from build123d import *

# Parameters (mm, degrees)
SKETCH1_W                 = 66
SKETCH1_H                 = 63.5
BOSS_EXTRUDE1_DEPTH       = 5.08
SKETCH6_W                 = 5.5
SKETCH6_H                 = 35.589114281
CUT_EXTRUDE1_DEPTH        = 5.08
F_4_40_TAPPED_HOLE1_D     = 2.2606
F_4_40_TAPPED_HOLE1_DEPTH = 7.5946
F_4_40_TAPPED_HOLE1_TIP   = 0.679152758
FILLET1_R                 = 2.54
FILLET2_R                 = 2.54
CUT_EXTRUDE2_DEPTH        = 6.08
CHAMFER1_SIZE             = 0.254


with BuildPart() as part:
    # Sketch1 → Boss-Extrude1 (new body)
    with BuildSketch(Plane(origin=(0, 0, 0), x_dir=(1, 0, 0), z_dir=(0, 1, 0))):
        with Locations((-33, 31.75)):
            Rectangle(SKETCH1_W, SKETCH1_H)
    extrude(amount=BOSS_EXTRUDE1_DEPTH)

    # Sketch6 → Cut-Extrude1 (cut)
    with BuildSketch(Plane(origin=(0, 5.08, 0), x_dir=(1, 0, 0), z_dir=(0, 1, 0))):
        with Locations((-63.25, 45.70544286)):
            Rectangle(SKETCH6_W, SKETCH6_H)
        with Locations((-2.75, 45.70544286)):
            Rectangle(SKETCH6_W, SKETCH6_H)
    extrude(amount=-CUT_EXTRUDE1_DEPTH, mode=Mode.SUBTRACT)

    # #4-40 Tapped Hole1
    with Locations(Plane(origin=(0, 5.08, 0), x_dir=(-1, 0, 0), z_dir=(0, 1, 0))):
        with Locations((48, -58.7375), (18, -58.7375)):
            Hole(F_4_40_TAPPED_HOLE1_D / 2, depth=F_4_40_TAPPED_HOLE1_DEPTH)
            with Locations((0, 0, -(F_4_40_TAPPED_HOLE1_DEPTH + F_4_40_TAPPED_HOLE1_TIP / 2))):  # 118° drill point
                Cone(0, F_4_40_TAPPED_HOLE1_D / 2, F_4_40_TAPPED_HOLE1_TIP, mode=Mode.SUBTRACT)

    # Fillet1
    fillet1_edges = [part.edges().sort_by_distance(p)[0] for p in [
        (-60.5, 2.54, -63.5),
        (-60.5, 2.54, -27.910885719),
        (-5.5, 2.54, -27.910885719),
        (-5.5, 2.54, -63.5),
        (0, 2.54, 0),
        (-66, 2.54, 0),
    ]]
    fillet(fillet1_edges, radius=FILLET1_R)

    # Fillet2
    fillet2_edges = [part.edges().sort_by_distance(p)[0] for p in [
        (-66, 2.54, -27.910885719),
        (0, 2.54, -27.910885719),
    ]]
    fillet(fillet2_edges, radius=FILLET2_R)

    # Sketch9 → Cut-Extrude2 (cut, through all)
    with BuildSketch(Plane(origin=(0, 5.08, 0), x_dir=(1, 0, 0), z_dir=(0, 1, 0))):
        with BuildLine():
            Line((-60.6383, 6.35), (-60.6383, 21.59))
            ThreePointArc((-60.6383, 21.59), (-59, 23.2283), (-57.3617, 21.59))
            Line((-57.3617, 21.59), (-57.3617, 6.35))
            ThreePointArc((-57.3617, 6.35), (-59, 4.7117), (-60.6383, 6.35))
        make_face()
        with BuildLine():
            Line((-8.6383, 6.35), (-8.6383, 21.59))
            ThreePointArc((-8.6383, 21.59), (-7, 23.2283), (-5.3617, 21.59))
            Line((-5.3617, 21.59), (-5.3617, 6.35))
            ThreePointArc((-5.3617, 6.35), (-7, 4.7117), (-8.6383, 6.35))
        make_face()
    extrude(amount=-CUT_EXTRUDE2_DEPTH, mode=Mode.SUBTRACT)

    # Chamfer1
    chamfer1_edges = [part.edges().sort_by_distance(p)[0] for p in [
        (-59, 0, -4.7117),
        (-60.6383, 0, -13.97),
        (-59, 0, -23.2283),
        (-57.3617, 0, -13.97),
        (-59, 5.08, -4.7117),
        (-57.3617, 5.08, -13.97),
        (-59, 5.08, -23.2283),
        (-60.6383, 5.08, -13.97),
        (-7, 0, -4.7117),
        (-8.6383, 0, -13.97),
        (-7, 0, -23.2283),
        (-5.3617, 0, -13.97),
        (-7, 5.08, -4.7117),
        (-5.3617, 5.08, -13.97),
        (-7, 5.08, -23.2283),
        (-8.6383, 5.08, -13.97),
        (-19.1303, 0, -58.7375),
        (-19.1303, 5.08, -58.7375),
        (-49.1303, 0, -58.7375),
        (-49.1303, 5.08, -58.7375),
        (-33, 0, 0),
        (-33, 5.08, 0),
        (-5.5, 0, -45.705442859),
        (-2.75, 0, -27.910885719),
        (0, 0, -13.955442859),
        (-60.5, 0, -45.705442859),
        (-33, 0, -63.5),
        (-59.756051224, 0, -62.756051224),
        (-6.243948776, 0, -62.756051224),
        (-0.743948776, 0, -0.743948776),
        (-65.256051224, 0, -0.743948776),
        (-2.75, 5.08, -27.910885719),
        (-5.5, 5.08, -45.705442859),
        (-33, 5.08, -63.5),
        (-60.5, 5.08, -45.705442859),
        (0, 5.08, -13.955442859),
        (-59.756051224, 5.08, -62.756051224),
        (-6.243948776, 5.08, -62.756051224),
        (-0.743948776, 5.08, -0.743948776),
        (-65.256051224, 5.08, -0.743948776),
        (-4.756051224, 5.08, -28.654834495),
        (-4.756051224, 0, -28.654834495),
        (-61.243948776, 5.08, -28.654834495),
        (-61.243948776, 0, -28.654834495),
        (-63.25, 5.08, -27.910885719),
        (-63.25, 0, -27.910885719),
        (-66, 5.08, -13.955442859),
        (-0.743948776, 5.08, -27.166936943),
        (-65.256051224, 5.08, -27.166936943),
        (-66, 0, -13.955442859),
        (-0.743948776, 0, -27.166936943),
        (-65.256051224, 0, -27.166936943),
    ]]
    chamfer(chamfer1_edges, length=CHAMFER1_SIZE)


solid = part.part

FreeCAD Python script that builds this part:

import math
import FreeCAD as App
import Part
import Sketcher
from FreeCAD import Vector
Q = App.Units.Quantity


def edges_at(feature, points):
    """Names of the edges that pass closest to the given points."""
    edges = feature.Shape.Edges
    near = lambda p: min(range(len(edges)), key=lambda i: edges[i].distToShape(Part.Vertex(*p))[0])
    return sorted({f"Edge{near(p) + 1}" for p in points})


def add_polygon(sketch, points):
    """Adds a closed chain of lines whose ends are joined by coincident constraints."""
    first, n = sketch.GeometryCount, len(points)
    for a, b in zip(points, points[1:] + points[:1]):
        sketch.addGeometry(Part.LineSegment(App.Vector(*a, 0), App.Vector(*b, 0)), False)
    for i in range(n):
        sketch.addConstraint(Sketcher.Constraint("Coincident", first + i, 2, first + (i + 1) % n, 1))

doc = App.newDocument("Part")
body = doc.addObject("PartDesign::Body", "Body")

# Sketch on XZ plane
sketch1 = doc.addObject("Sketcher::SketchObject", "Sketch")
body.addObject(sketch1)
sketch1.AttachmentSupport = (doc.XZ_Plane, [""])
sketch1.MapMode = "FlatFace"
add_polygon(sketch1, [(-66, -64), (-66, 0), (0, 0), (0, -64)])  # lines 0-3
sketch1.addConstraint(Sketcher.Constraint("Vertical", 0))
sketch1.addConstraint(Sketcher.Constraint("Horizontal", 1))
sketch1.addConstraint(Sketcher.Constraint("Vertical", 2))
sketch1.addConstraint(Sketcher.Constraint("Horizontal", 3))
sketch1.addConstraint(Sketcher.Constraint("Coincident", 1, 2, -1, 1))
sketch1.addConstraint(Sketcher.Constraint("DistanceY", 0, 1, 0, 2, Q("2.5 in")))
sketch1.addConstraint(Sketcher.Constraint("DistanceX", 1, 1, 1, 2, 66.0))
pad1 = doc.addObject("PartDesign::Pad", "Pad")
body.addObject(pad1)
pad1.Profile = sketch1
pad1.Length = Q("0.2 in")
pad1.Reversed = True

# Sketch on XZ plane
sketch2 = doc.addObject("Sketcher::SketchObject", "Sketch001")
body.addObject(sketch2)
sketch2.AttachmentSupport = (doc.XZ_Plane, [""])
sketch2.MapMode = "FlatFace"
sketch2.AttachmentOffset = App.Placement(Vector(0, 0, -0.2 * 25.4), App.Rotation())
add_polygon(sketch2, [(-66, -64), (-66, -28), (-60, -28), (-60, -64)])  # lines 0-3
add_polygon(sketch2, [(-6, -64), (-6, -28), (0, -28), (0, -64)])  # lines 4-7
sketch2.addConstraint(Sketcher.Constraint("Vertical", 0))
sketch2.addConstraint(Sketcher.Constraint("Horizontal", 1))
sketch2.addConstraint(Sketcher.Constraint("Vertical", 2))
sketch2.addConstraint(Sketcher.Constraint("Horizontal", 3))
sketch2.addConstraint(Sketcher.Constraint("Vertical", 4))
sketch2.addConstraint(Sketcher.Constraint("Horizontal", 5))
sketch2.addConstraint(Sketcher.Constraint("Vertical", 6))
sketch2.addConstraint(Sketcher.Constraint("Horizontal", 7))
sketch2.addConstraint(Sketcher.Constraint("PointOnObject", 5, 2, -2))
sketch2.addConstraint(Sketcher.Constraint("Horizontal", 1, 2, 4, 2))
sketch2.addConstraint(Sketcher.Constraint("Horizontal", 3, 2, 6, 2))
sketch2.addConstraint(Sketcher.Constraint("Equal", 3, 5))
sketch2.addConstraint(Sketcher.Constraint("DistanceY", 2, 2, -1, 1, Q("2.5 in")))
sketch2.addConstraint(Sketcher.Constraint("DistanceX", 1, 1, 1, 2, 5.5))
sketch2.addConstraint(Sketcher.Constraint("DistanceX", 0, 2, -1, 1, 66.0))
sketch2.addConstraint(Sketcher.Constraint("DistanceY", 0, 1, 0, 2, 35.589114))
pocket1 = doc.addObject("PartDesign::Pocket", "Pocket")
body.addObject(pocket1)
pocket1.Profile = sketch2
pocket1.Length = Q("0.2 in")
pocket1.Reversed = True

# Sketch on XZ plane
sketch3 = doc.addObject("Sketcher::SketchObject", "Sketch002")
body.addObject(sketch3)
sketch3.AttachmentSupport = (doc.XZ_Plane, [""])
sketch3.MapMode = "FlatFace"
sketch3.AttachmentOffset = App.Placement(Vector(0, 0, -0.2 * 25.4), App.Rotation())
sketch3.addGeometry(Part.Circle(Vector(-48, -58.7, 0), Vector(0, 0, 1), 1.1), False)
sketch3.addGeometry(Part.Circle(Vector(-18, -58.7, 0), Vector(0, 0, 1), 1.1), False)
sketch3.addConstraint(Sketcher.Constraint("Equal", 0, 1))
sketch3.addConstraint(Sketcher.Constraint("Horizontal", 0, 3, 1, 3))
sketch3.addConstraint(Sketcher.Constraint("Diameter", 0, Q("0.089 in")))
sketch3.addConstraint(Sketcher.Constraint("DistanceY", 0, 3, -1, 1, Q("2.3125 in")))
sketch3.addConstraint(Sketcher.Constraint("DistanceX", 0, 3, -1, 1, 48.0))
sketch3.addConstraint(Sketcher.Constraint("DistanceX", 1, 3, -1, 1, 18.0))
doc.recompute()
hole = doc.addObject("PartDesign::Hole", "Hole")
body.addObject(hole)
hole.Profile = sketch3
hole.ThreadType = "None"
hole.Diameter = Q("0.089 in")
hole.DepthType = "Dimension"
hole.Depth = Q("0.299 in")
hole.DrillPoint = "Angled"
hole.DrillPointAngle = 118
hole.Reversed = True
doc.recompute()

fillet = doc.addObject("PartDesign::Fillet", "Fillet")
body.addObject(fillet)
fillet.Base = (hole, edges_at(hole, [
    (-60.5, 2.54, -63.5),
    (-60.5, 2.54, -27.911),
    (-5.5, 2.54, -27.911),
    (-5.5, 2.54, -63.5),
    (0, 2.54, 0),
    (-66, 2.54, 0),
]))
fillet.Radius = Q("0.1 in")
doc.recompute()

fillet2 = doc.addObject("PartDesign::Fillet", "Fillet001")
body.addObject(fillet2)
fillet2.Base = (fillet, edges_at(fillet, [(-66, 2.54, -27.911), (0, 2.54, -27.911)]))
fillet2.Radius = Q("0.1 in")

# Sketch on XZ plane
sketch4 = doc.addObject("Sketcher::SketchObject", "Sketch003")
body.addObject(sketch4)
sketch4.AttachmentSupport = (doc.XZ_Plane, [""])
sketch4.MapMode = "FlatFace"
sketch4.AttachmentOffset = App.Placement(Vector(0, 0, -0.2 * 25.4), App.Rotation())
sketch4.addGeometry(Part.LineSegment(Vector(-60.6, -21.6, 0), Vector(-60.6, -6.3, 0)), False)
sketch4.addGeometry(Part.ArcOfCircle(Part.Circle(Vector(-59, -6.3, 0), Vector(0, 0, 1), 1.6), math.radians(0), math.radians(180)), False)
sketch4.addGeometry(Part.LineSegment(Vector(-57.4, -6.3, 0), Vector(-57.4, -21.6, 0)), False)
sketch4.addGeometry(Part.ArcOfCircle(Part.Circle(Vector(-59, -21.6, 0), Vector(0, 0, 1), 1.6), math.radians(180), math.radians(360)), False)
sketch4.addGeometry(Part.LineSegment(Vector(-8.6, -21.6, 0), Vector(-8.6, -6.3, 0)), False)
sketch4.addGeometry(Part.ArcOfCircle(Part.Circle(Vector(-7, -6.3, 0), Vector(0, 0, 1), 1.6), math.radians(0), math.radians(180)), False)
sketch4.addGeometry(Part.LineSegment(Vector(-5.4, -6.3, 0), Vector(-5.4, -21.6, 0)), False)
sketch4.addGeometry(Part.ArcOfCircle(Part.Circle(Vector(-7, -21.6, 0), Vector(0, 0, 1), 1.6), math.radians(180), math.radians(360)), False)
sketch4.addConstraint(Sketcher.Constraint("Tangent", 0, 2, 1, 2))
sketch4.addConstraint(Sketcher.Constraint("Tangent", 1, 1, 2, 1))
sketch4.addConstraint(Sketcher.Constraint("Tangent", 2, 2, 3, 2))
sketch4.addConstraint(Sketcher.Constraint("Tangent", 3, 1, 0, 1))
sketch4.addConstraint(Sketcher.Constraint("Tangent", 4, 2, 5, 2))
sketch4.addConstraint(Sketcher.Constraint("Tangent", 5, 1, 6, 1))
sketch4.addConstraint(Sketcher.Constraint("Tangent", 6, 2, 7, 2))
sketch4.addConstraint(Sketcher.Constraint("Tangent", 7, 1, 4, 1))
sketch4.addConstraint(Sketcher.Constraint("Vertical", 0))
sketch4.addConstraint(Sketcher.Constraint("Vertical", 2))
sketch4.addConstraint(Sketcher.Constraint("Vertical", 4))
sketch4.addConstraint(Sketcher.Constraint("Vertical", 6))
sketch4.addConstraint(Sketcher.Constraint("Equal", 3, 5))
sketch4.addConstraint(Sketcher.Constraint("Horizontal", 1, 3, 5, 3))
sketch4.addConstraint(Sketcher.Constraint("Horizontal", 3, 3, 7, 3))
sketch4.addConstraint(Sketcher.Constraint("DistanceY", 0, 1, 0, 2, Q("0.6 in")))
sketch4.addConstraint(Sketcher.Constraint("Radius", 1, Q("0.0645 in")))
sketch4.addConstraint(Sketcher.Constraint("DistanceY", 1, 3, -1, 1, Q("0.25 in")))
sketch4.addConstraint(Sketcher.Constraint("DistanceX", 1, 3, -1, 1, 59.0))
sketch4.addConstraint(Sketcher.Constraint("DistanceX", 5, 3, -1, 1, 7.0))
pocket2 = doc.addObject("PartDesign::Pocket", "Pocket001")
body.addObject(pocket2)
pocket2.Profile = sketch4
pocket2.Type = "ThroughAll"
pocket2.Reversed = True
doc.recompute()

chamfer = doc.addObject("PartDesign::Chamfer", "Chamfer")
body.addObject(chamfer)
chamfer.Base = (pocket2, edges_at(pocket2, [
    (-59, 0, -4.712),
    (-60.638, 0, -13.97),
    (-59, 0, -23.228),
    (-57.362, 0, -13.97),
    (-59, 5.08, -4.712),
    (-57.362, 5.08, -13.97),
    (-59, 5.08, -23.228),
    (-60.638, 5.08, -13.97),
    (-7, 0, -4.712),
    (-8.638, 0, -13.97),
    (-7, 0, -23.228),
    (-5.362, 0, -13.97),
    (-7, 5.08, -4.712),
    (-5.362, 5.08, -13.97),
    (-7, 5.08, -23.228),
    (-8.638, 5.08, -13.97),
    (-19.13, 0, -58.737),
    (-19.13, 5.08, -58.737),
    (-49.13, 0, -58.737),
    (-49.13, 5.08, -58.737),
    (-33, 0, 0),
    (-33, 5.08, 0),
    (-5.5, 0, -45.705),
    (-2.75, 0, -27.911),
    (0, 0, -13.955),
    (-60.5, 0, -45.705),
    (-33, 0, -63.5),
    (-59.756, 0, -62.756),
    (-6.244, 0, -62.756),
    (-0.744, 0, -0.744),
    (-65.256, 0, -0.744),
    (-2.75, 5.08, -27.911),
    (-5.5, 5.08, -45.705),
    (-33, 5.08, -63.5),
    (-60.5, 5.08, -45.705),
    (0, 5.08, -13.955),
    (-59.756, 5.08, -62.756),
    (-6.244, 5.08, -62.756),
    (-0.744, 5.08, -0.744),
    (-65.256, 5.08, -0.744),
    (-4.756, 5.08, -28.655),
    (-4.756, 0, -28.655),
    (-61.244, 5.08, -28.655),
    (-61.244, 0, -28.655),
    (-63.25, 5.08, -27.911),
    (-63.25, 0, -27.911),
    (-66, 5.08, -13.955),
    (-0.744, 5.08, -27.167),
    (-65.256, 5.08, -27.167),
    (-66, 0, -13.955),
    (-0.744, 0, -27.167),
    (-65.256, 0, -27.167),
]))
chamfer.Size = Q("0.01 in")

doc.recompute()
